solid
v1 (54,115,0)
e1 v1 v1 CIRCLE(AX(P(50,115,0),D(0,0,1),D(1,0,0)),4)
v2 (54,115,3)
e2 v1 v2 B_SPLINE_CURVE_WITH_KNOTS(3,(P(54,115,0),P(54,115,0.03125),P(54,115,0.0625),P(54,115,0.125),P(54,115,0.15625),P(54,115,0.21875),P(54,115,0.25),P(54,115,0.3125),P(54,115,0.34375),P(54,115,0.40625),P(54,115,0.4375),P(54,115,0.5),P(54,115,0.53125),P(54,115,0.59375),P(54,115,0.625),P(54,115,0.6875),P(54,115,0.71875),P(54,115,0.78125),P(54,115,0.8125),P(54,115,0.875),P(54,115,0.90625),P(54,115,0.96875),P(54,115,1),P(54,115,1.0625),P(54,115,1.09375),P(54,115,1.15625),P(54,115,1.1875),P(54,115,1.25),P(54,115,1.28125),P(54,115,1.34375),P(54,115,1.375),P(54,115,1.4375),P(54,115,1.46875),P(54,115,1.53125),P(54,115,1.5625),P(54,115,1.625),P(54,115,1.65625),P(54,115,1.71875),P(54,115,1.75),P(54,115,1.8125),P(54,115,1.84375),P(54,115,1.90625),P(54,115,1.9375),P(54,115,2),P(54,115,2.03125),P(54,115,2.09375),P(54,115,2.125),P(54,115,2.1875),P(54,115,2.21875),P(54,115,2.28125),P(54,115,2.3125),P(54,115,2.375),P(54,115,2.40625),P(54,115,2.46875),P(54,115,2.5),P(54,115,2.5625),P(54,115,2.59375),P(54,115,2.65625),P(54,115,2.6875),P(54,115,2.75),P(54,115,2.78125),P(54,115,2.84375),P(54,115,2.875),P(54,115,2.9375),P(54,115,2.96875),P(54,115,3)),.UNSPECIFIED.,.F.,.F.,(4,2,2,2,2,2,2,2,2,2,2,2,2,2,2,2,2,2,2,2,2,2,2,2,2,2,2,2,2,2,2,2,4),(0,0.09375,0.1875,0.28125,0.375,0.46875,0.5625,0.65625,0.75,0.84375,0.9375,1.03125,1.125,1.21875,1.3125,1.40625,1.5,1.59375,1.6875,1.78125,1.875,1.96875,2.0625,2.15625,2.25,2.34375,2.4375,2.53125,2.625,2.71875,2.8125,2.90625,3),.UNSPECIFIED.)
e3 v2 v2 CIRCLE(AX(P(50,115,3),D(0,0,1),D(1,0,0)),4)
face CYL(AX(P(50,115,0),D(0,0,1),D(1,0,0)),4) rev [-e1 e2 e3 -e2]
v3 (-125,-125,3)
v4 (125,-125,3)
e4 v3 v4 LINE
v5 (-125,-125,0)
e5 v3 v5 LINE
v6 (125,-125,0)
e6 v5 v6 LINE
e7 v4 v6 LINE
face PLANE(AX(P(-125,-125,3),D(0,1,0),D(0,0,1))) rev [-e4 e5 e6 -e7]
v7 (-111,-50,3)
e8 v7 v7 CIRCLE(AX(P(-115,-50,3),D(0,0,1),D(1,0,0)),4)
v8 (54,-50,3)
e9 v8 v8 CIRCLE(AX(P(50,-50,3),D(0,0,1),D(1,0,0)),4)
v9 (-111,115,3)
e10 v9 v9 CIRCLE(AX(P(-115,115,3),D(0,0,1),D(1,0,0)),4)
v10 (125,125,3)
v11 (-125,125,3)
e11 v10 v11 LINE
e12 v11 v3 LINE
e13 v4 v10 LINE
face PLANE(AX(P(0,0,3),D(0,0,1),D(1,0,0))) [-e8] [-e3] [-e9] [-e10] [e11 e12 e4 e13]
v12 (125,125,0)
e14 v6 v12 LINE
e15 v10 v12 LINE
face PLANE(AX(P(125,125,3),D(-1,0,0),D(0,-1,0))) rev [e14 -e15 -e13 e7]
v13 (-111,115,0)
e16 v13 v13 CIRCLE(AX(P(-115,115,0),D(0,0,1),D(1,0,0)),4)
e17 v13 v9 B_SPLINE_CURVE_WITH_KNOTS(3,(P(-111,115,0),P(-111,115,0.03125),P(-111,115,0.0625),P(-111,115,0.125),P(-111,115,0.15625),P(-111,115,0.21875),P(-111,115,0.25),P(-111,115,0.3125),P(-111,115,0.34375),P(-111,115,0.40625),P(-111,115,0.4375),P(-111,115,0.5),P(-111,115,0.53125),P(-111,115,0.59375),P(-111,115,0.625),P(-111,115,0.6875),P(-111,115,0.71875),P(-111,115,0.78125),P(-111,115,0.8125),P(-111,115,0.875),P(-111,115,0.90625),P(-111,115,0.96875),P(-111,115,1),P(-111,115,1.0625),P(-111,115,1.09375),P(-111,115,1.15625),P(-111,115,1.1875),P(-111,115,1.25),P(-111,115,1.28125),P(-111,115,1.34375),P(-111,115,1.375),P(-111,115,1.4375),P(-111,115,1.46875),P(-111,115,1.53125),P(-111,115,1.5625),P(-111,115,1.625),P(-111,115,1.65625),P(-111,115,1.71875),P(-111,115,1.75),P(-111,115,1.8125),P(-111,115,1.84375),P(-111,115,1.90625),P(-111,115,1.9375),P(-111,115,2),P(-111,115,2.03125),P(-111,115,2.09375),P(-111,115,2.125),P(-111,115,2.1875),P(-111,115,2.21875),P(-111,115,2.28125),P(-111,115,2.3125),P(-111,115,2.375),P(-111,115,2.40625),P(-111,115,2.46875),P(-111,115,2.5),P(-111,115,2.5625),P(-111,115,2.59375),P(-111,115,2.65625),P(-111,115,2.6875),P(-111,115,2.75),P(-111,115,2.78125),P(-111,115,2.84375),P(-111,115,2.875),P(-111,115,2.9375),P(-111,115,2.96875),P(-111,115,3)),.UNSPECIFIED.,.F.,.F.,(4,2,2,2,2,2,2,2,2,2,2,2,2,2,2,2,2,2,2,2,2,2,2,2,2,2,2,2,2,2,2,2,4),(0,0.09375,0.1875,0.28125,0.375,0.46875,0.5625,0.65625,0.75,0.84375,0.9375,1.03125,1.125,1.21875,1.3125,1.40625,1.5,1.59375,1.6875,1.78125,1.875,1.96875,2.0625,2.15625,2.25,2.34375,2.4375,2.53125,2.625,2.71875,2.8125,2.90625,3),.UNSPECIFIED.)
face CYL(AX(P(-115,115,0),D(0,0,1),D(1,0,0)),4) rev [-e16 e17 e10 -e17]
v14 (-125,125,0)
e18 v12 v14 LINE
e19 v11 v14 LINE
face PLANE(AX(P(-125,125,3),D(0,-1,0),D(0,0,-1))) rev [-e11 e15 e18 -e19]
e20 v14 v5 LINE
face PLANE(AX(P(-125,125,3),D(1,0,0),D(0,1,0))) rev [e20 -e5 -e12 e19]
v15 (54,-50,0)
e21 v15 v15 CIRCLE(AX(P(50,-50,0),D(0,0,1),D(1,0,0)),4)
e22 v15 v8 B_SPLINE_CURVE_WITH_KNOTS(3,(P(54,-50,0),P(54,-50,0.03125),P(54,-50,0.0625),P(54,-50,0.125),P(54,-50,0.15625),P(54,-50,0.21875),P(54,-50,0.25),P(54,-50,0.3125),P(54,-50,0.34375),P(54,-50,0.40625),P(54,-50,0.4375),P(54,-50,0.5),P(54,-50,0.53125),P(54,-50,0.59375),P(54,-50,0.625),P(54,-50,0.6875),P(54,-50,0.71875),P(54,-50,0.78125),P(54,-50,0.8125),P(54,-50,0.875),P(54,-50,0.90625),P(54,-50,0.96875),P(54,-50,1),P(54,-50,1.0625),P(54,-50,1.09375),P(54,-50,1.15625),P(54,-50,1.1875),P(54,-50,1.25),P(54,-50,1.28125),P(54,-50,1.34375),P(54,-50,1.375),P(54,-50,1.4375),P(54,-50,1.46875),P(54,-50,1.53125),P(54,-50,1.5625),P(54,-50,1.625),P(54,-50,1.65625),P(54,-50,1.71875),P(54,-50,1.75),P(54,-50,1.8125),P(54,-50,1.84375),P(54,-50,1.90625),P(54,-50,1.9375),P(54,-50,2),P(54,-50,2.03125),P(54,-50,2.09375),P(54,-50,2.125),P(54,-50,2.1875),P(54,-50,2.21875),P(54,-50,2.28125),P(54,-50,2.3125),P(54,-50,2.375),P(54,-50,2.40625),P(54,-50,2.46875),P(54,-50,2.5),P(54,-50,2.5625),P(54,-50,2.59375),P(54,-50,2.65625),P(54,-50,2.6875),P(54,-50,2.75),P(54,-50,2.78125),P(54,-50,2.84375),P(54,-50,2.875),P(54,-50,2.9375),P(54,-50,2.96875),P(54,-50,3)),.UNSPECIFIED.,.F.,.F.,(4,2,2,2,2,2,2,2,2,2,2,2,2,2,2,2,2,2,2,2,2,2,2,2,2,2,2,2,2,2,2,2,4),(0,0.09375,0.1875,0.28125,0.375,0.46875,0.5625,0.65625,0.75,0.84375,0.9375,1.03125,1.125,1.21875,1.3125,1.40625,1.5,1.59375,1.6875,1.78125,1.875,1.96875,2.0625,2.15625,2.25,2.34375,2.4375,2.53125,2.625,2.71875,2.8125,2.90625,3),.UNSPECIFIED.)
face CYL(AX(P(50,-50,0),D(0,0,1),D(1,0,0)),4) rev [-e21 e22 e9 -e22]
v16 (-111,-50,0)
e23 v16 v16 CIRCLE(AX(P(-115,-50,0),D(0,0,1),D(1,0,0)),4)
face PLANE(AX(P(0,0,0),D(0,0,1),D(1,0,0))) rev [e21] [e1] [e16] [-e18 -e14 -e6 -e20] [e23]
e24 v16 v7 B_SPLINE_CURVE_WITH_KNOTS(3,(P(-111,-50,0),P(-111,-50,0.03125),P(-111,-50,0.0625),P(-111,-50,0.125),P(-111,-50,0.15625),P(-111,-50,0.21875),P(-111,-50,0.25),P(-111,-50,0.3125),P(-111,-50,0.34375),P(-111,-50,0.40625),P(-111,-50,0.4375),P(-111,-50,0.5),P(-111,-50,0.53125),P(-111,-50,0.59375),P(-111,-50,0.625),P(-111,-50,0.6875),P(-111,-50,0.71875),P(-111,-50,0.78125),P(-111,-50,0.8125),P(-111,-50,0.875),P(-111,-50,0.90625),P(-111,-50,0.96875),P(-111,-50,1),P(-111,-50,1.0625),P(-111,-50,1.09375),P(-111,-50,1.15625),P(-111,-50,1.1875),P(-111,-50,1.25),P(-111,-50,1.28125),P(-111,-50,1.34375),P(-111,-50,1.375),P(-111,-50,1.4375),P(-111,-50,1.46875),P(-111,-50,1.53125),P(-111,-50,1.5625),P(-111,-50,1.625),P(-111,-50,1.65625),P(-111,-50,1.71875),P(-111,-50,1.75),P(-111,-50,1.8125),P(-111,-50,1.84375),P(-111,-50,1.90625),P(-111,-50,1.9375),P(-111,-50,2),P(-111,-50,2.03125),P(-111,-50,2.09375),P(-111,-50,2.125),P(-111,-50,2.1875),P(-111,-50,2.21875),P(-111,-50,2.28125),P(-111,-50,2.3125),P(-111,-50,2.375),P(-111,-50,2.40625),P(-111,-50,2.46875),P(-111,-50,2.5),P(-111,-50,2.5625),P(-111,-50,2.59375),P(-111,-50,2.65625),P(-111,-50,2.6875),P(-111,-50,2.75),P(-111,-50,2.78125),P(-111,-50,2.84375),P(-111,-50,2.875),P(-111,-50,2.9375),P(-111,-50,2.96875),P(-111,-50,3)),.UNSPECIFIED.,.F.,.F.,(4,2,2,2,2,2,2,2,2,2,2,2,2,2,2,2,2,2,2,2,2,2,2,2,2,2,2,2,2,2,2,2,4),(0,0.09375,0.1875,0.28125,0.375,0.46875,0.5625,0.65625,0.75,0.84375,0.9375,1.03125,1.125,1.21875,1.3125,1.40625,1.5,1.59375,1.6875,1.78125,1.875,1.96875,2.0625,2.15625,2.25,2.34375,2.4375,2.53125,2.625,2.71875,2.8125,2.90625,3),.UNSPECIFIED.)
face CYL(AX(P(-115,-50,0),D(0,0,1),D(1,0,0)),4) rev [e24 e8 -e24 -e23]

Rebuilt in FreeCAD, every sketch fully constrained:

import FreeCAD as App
import Part
import Sketcher
from FreeCAD import Vector
Q = App.Units.Quantity


def add_polygon(sketch, points):
    """Adds a closed chain of lines whose ends are joined by coincident constraints."""
    first, n = sketch.GeometryCount, len(points)
    for a, b in zip(points, points[1:] + points[:1]):
        sketch.addGeometry(Part.LineSegment(App.Vector(*a, 0), App.Vector(*b, 0)), False)
    for i in range(n):
        sketch.addConstraint(Sketcher.Constraint("Coincident", first + i, 2, first + (i + 1) % n, 1))

doc = App.newDocument("Part")
body = doc.addObject("PartDesign::Body", "Body")

sketch1 = body.newObject("Sketcher::SketchObject", "Sketch")
sketch1.AttachmentSupport = (doc.getObject("XY_Plane"), [""])
sketch1.MapMode = "FlatFace"
add_polygon(sketch1, [(-125, 125), (-125, -125), (125, -125), (125, 125)])
sketch1.addConstraint([
    Sketcher.Constraint("Vertical", 0),
    Sketcher.Constraint("Horizontal", 1),
    Sketcher.Constraint("Vertical", 2),
    Sketcher.Constraint("Horizontal", 3),
    Sketcher.Constraint("Symmetric", 0, 2, 2, 2, -1, 1),
    Sketcher.Constraint("Equal", 3, 0),
    Sketcher.Constraint("DistanceX", 1, 1, 1, 2, Q("250 mm")),
])
pad1 = body.newObject("PartDesign::Pad", "Pad")
pad1.Profile = sketch1
pad1.Length = 3

sketch2 = body.newObject("Sketcher::SketchObject", "Sketch001")
sketch2.AttachmentSupport = (doc.getObject("XY_Plane"), [""])
sketch2.MapMode = "FlatFace"
sketch2.AttachmentOffset = App.Placement(Vector(0, 0, 3), App.Rotation())
sketch2.addGeometry([
    Part.Circle(Vector(-115, 115, 0), Vector(0, 0, 1), 4),
    Part.Circle(Vector(50, 115, 0), Vector(0, 0, 1), 4),
    Part.Circle(Vector(-115, -50, 0), Vector(0, 0, 1), 4),
    Part.Circle(Vector(50, -50, 0), Vector(0, 0, 1), 4),
], False)
sketch2.addConstraint([
    Sketcher.Constraint("Equal", 0, 1),
    Sketcher.Constraint("Equal", 1, 2),
    Sketcher.Constraint("Equal", 2, 3),
    Sketcher.Constraint("Horizontal", 0, 3, 1, 3),
    Sketcher.Constraint("Horizontal", 2, 3, 3, 3),
    Sketcher.Constraint("Vertical", 0, 3, 2, 3),
    Sketcher.Constraint("Vertical", 1, 3, 3, 3),
    Sketcher.Constraint("Diameter", 0, Q("8 mm")),
    Sketcher.Constraint("DistanceX", 0, 3, -1, 1, Q("115 mm")),
    Sketcher.Constraint("DistanceY", -1, 1, 0, 3, Q("115 mm")),
    Sketcher.Constraint("DistanceX", -1, 1, 1, 3, Q("50 mm")),
    Sketcher.Constraint("DistanceY", 2, 3, -1, 1, Q("50 mm")),
])
pocket1 = body.newObject("PartDesign::Pocket", "Pocket")
pocket1.Profile = sketch2
pocket1.Length = 3

doc.recompute()
